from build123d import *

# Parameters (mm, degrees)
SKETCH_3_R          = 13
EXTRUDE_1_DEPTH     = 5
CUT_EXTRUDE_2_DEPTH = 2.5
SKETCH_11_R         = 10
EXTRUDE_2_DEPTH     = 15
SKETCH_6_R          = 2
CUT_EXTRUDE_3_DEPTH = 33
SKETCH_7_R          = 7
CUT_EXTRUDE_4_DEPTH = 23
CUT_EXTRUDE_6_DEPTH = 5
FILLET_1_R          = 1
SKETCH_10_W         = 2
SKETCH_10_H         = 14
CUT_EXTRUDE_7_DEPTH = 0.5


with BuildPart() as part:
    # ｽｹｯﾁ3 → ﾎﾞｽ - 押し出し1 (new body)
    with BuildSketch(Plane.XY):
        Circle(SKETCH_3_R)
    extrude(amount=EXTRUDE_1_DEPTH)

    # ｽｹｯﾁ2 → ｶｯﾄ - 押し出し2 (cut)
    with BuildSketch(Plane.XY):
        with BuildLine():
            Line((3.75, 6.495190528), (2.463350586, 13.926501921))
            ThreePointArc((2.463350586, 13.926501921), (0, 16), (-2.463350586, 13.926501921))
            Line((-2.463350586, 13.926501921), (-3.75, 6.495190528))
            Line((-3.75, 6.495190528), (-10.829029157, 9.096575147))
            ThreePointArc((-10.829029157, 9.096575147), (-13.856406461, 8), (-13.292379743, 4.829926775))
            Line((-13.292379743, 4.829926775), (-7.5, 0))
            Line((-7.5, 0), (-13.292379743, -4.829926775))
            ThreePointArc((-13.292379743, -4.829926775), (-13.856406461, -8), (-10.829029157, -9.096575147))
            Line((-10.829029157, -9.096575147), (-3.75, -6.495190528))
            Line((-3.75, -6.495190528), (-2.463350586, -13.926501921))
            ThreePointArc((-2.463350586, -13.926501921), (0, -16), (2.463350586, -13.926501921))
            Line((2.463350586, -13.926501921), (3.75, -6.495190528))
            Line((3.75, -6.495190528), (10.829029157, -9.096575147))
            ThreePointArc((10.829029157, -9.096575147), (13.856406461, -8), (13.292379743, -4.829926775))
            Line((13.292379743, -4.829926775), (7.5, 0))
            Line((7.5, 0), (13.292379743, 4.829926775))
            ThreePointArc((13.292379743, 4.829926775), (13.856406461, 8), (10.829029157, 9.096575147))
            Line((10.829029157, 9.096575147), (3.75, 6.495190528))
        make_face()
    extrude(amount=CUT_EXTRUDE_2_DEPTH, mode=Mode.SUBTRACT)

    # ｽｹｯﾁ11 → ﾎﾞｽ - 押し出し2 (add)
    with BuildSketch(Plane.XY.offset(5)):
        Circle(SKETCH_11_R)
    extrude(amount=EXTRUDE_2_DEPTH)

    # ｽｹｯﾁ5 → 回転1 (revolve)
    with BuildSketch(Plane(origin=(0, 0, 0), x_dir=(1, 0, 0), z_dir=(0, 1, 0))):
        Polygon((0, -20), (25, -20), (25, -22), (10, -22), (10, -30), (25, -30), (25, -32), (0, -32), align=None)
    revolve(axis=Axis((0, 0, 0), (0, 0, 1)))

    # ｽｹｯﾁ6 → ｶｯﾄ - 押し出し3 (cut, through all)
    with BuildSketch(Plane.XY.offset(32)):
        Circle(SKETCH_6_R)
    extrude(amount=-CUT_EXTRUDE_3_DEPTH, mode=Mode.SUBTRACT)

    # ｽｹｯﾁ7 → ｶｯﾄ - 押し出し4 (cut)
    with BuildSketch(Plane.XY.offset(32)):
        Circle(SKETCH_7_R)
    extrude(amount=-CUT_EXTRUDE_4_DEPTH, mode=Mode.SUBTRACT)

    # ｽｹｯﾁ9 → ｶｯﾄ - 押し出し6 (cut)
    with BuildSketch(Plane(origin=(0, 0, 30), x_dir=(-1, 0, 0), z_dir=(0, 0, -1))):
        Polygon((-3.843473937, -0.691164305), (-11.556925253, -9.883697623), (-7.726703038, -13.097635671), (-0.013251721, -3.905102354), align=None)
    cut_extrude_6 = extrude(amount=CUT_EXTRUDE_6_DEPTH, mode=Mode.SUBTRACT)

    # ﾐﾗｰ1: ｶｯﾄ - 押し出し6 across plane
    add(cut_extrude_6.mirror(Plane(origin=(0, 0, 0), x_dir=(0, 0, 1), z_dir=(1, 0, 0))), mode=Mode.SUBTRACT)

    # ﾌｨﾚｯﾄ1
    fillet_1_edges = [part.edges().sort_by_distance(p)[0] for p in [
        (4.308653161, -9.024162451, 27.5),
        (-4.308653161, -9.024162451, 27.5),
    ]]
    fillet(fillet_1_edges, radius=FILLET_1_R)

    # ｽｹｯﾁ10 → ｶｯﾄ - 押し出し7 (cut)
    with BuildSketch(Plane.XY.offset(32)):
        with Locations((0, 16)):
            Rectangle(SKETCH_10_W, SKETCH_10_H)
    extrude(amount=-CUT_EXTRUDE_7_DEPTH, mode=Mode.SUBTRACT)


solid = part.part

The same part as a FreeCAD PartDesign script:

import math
import FreeCAD as App
import Part
import Sketcher
Q = App.Units.Quantity


def edges_at(feature, points):
    """Names of the edges that pass closest to the given points."""
    edges = feature.Shape.Edges
    near = lambda p: min(range(len(edges)), key=lambda i: edges[i].distToShape(Part.Vertex(*p))[0])
    return sorted({f"Edge{near(p) + 1}" for p in points})


def add_polygon(sketch, points):
    """Adds a closed chain of lines whose ends are joined by coincident constraints."""
    first, n = sketch.GeometryCount, len(points)
    for a, b in zip(points, points[1:] + points[:1]):
        sketch.addGeometry(Part.LineSegment(App.Vector(*a, 0), App.Vector(*b, 0)), False)
    for i in range(n):
        sketch.addConstraint(Sketcher.Constraint("Coincident", first + i, 2, first + (i + 1) % n, 1))

doc = App.newDocument("Part")
body = doc.addObject("PartDesign::Body", "Body")

sketch1 = body.newObject("Sketcher::SketchObject", "Sketch")
sketch1.AttachmentSupport = (doc.getObject("XY_Plane"), [""])
sketch1.MapMode = "FlatFace"
sketch1.addGeometry(Part.Circle(App.Vector(0, 0, 0), App.Vector(0, 0, 1), 13), False)
sketch1.addConstraint([
    Sketcher.Constraint("Coincident", 0, 3, -1, 1),
    Sketcher.Constraint("Diameter", 0, 26.0),
])
pad1 = body.newObject("PartDesign::Pad", "Pad")
pad1.Profile = sketch1
pad1.Length = 5

sketch2 = body.newObject("Sketcher::SketchObject", "Sketch001")
sketch2.AttachmentSupport = (doc.getObject("XY_Plane"), [""])
sketch2.MapMode = "FlatFace"
sketch2.addGeometry([
    Part.LineSegment(App.Vector(3.8, 6.5, 0), App.Vector(2.5, 13.9, 0)),
    Part.ArcOfCircle(Part.Circle(App.Vector(0, 13.5, 0), App.Vector(0, 0, 1), 2.5), math.radians(10), math.radians(170)),
    Part.LineSegment(App.Vector(-2.5, 13.9, 0), App.Vector(-3.8, 6.5, 0)),
    Part.LineSegment(App.Vector(-3.8, 6.5, 0), App.Vector(-10.8, 9.1, 0)),
    Part.ArcOfCircle(Part.Circle(App.Vector(-11.7, 6.8, 0), App.Vector(0, 0, 1), 2.5), math.radians(70), math.radians(230)),
    Part.LineSegment(App.Vector(-13.3, 4.8, 0), App.Vector(-7.5, 0, 0)),
    Part.LineSegment(App.Vector(-7.5, 0, 0), App.Vector(-13.3, -4.8, 0)),
    Part.ArcOfCircle(Part.Circle(App.Vector(-11.7, -6.8, 0), App.Vector(0, 0, 1), 2.5), math.radians(130), math.radians(290)),
    Part.LineSegment(App.Vector(-10.8, -9.1, 0), App.Vector(-3.8, -6.5, 0)),
    Part.LineSegment(App.Vector(-3.8, -6.5, 0), App.Vector(-2.5, -13.9, 0)),
    Part.ArcOfCircle(Part.Circle(App.Vector(0, -13.5, 0), App.Vector(0, 0, 1), 2.5), math.radians(-170), math.radians(-10)),
    Part.LineSegment(App.Vector(2.5, -13.9, 0), App.Vector(3.8, -6.5, 0)),
    Part.LineSegment(App.Vector(3.8, -6.5, 0), App.Vector(10.8, -9.1, 0)),
    Part.ArcOfCircle(Part.Circle(App.Vector(11.7, -6.8, 0), App.Vector(0, 0, 1), 2.5), math.radians(-110), math.radians(50)),
    Part.LineSegment(App.Vector(13.3, -4.8, 0), App.Vector(7.5, 0, 0)),
    Part.LineSegment(App.Vector(7.5, 0, 0), App.Vector(13.3, 4.8, 0)),
    Part.ArcOfCircle(Part.Circle(App.Vector(11.7, 6.8, 0), App.Vector(0, 0, 1), 2.5), math.radians(-50), math.radians(110)),
    Part.LineSegment(App.Vector(10.8, 9.1, 0), App.Vector(3.8, 6.5, 0)),
], False)
sketch2.addConstraint([
    Sketcher.Constraint("Tangent", 0, 2, 1, 1),
    Sketcher.Constraint("Tangent", 1, 2, 2, 1),
    Sketcher.Constraint("Coincident", 2, 2, 3, 1),
    Sketcher.Constraint("Tangent", 3, 2, 4, 1),
    Sketcher.Constraint("Tangent", 4, 2, 5, 1),
    Sketcher.Constraint("Coincident", 5, 2, 6, 1),
    Sketcher.Constraint("Tangent", 6, 2, 7, 1),
    Sketcher.Constraint("Tangent", 7, 2, 8, 1),
    Sketcher.Constraint("Coincident", 8, 2, 9, 1),
    Sketcher.Constraint("Tangent", 9, 2, 10, 1),
    Sketcher.Constraint("Tangent", 10, 2, 11, 1),
    Sketcher.Constraint("Coincident", 11, 2, 12, 1),
    Sketcher.Constraint("Tangent", 12, 2, 13, 1),
    Sketcher.Constraint("Tangent", 13, 2, 14, 1),
    Sketcher.Constraint("Coincident", 14, 2, 15, 1),
    Sketcher.Constraint("Tangent", 15, 2, 16, 1),
    Sketcher.Constraint("Tangent", 16, 2, 17, 1),
    Sketcher.Constraint("Coincident", 17, 2, 0, 1),
    Sketcher.Constraint("Equal", 1, 4),
    Sketcher.Constraint("Equal", 4, 7),
    Sketcher.Constraint("Equal", 7, 10),
    Sketcher.Constraint("Equal", 10, 13),
    Sketcher.Constraint("Equal", 13, 16),
    Sketcher.Constraint("Symmetric", 1, 3, 10, 3, -1, 1),
    Sketcher.Constraint("Symmetric", 4, 3, 13, 3, -1, 1),
    Sketcher.Constraint("Symmetric", 7, 3, 16, 3, -1, 1),
    Sketcher.Constraint("Symmetric", 2, 2, 11, 2, -1, 1),
    Sketcher.Constraint("Symmetric", 5, 2, 14, 2, -1, 1),
    Sketcher.Constraint("Symmetric", 8, 2, 17, 2, -1, 1),
    Sketcher.Constraint("Symmetric", 7, 3, 13, 3, -2),
    Sketcher.Constraint("Symmetric", 0, 2, 1, 2, -2),
    Sketcher.Constraint("PointOnObject", 5, 2, -1),
    Sketcher.Constraint("Horizontal", 8, 2, 11, 2),
    Sketcher.Constraint("Equal", 2, 3),
    Sketcher.Constraint("Equal", 3, 5),
    Sketcher.Constraint("Radius", 1, 2.5),
    Sketcher.Constraint("DistanceY", 10, 3, 1, 3, 27.0),
    Sketcher.Constraint("DistanceX", 5, 2, -1, 1, 7.5),
    Sketcher.Constraint("DistanceY", 7, 3, 4, 3, 13.5),
    Sketcher.Constraint("DistanceX", 8, 2, 11, 2, 7.5),
])
pocket1 = body.newObject("PartDesign::Pocket", "Pocket")
pocket1.Profile = sketch2
pocket1.Length = 2.5
pocket1.Reversed = True

sketch3 = body.newObject("Sketcher::SketchObject", "Sketch002")
sketch3.AttachmentSupport = (doc.getObject("XY_Plane"), [""])
sketch3.MapMode = "FlatFace"
sketch3.AttachmentOffset = App.Placement(App.Vector(0, 0, 5), App.Rotation())
sketch3.addGeometry(Part.Circle(App.Vector(0, 0, 0), App.Vector(0, 0, 1), 10), False)
sketch3.addConstraint([
    Sketcher.Constraint("Coincident", 0, 3, -1, 1),
    Sketcher.Constraint("Diameter", 0, 20.0),
])
pad2 = body.newObject("PartDesign::Pad", "Pad001")
pad2.Profile = sketch3
pad2.Length = 15

sketch4 = body.newObject("Sketcher::SketchObject", "Sketch003")
sketch4.AttachmentSupport = (doc.getObject("XZ_Plane"), [""])
sketch4.MapMode = "FlatFace"
add_polygon(sketch4, [(25, 20), (0, 20), (0, 32), (25, 32), (25, 30), (10, 30), (10, 22), (25, 22)])
sketch4.addConstraint([
    Sketcher.Constraint("Horizontal", 0),
    Sketcher.Constraint("Vertical", 1),
    Sketcher.Constraint("Horizontal", 2),
    Sketcher.Constraint("Vertical", 3),
    Sketcher.Constraint("Horizontal", 4),
    Sketcher.Constraint("Vertical", 5),
    Sketcher.Constraint("Horizontal", 6),
    Sketcher.Constraint("Vertical", 7),
    Sketcher.Constraint("PointOnObject", 0, 2, -2),
    Sketcher.Constraint("Vertical", 3, 2, 6, 2),
    Sketcher.Constraint("Equal", 3, 7),
    Sketcher.Constraint("DistanceX", 0, 2, 0, 1, 25.0),
    Sketcher.Constraint("DistanceX", 4, 2, 4, 1, 15.0),
    Sketcher.Constraint("DistanceY", 1, 1, 1, 2, 12.0),
    Sketcher.Constraint("DistanceY", 3, 2, 3, 1, 2.0),
    Sketcher.Constraint("DistanceY", -1, 1, 0, 2, 20.0),
])
revolution = body.newObject("PartDesign::Revolution", "Revolution")
revolution.Profile = sketch4
revolution.ReferenceAxis = (sketch4, ["V_Axis"])
revolution.Angle = 360

sketch5 = body.newObject("Sketcher::SketchObject", "Sketch004")
sketch5.AttachmentSupport = (doc.getObject("XY_Plane"), [""])
sketch5.MapMode = "FlatFace"
sketch5.AttachmentOffset = App.Placement(App.Vector(0, 0, 32), App.Rotation())
sketch5.addGeometry(Part.Circle(App.Vector(0, 0, 0), App.Vector(0, 0, 1), 2), False)
sketch5.addConstraint([
    Sketcher.Constraint("Coincident", 0, 3, -1, 1),
    Sketcher.Constraint("Diameter", 0, 4.0),
])
pocket2 = body.newObject("PartDesign::Pocket", "Pocket001")
pocket2.Profile = sketch5
pocket2.Type = "ThroughAll"

sketch6 = body.newObject("Sketcher::SketchObject", "Sketch005")
sketch6.AttachmentSupport = (doc.getObject("XY_Plane"), [""])
sketch6.MapMode = "FlatFace"
sketch6.AttachmentOffset = App.Placement(App.Vector(0, 0, 32), App.Rotation())
sketch6.addGeometry(Part.Circle(App.Vector(0, 0, 0), App.Vector(0, 0, 1), 7), False)
sketch6.addConstraint([
    Sketcher.Constraint("Coincident", 0, 3, -1, 1),
    Sketcher.Constraint("Diameter", 0, 14.0),
])
pocket3 = body.newObject("PartDesign::Pocket", "Pocket002")
pocket3.Profile = sketch6
pocket3.Length = 23

sketch7 = body.newObject("Sketcher::SketchObject", "Sketch006")
sketch7.AttachmentSupport = (doc.getObject("XY_Plane"), [""])
sketch7.MapMode = "FlatFace"
sketch7.AttachmentOffset = App.Placement(App.Vector(0, 0, 30), App.Rotation())
add_polygon(sketch7, [(3.8, -0.7), (11.6, -9.9), (7.7, -13.1), (0, -3.9)])
sketch7.addConstraint([
    Sketcher.Constraint("Perpendicular", 0, 1),
    Sketcher.Constraint("Perpendicular", 1, 2),
    Sketcher.Constraint("Perpendicular", 2, 3),
    Sketcher.Constraint("Angle", 0, Q("-50 deg")),
    Sketcher.Constraint("Distance", 0, 12.0),
    Sketcher.Constraint("Distance", 1, 5.0),
    Sketcher.Constraint("DistanceX", -1, 1, 2, 2, 0.013252),
    Sketcher.Constraint("DistanceY", 0, 2, -1, 1, 9.883698),
])
pocket4 = body.newObject("PartDesign::Pocket", "Pocket003")
pocket4.Profile = sketch7
pocket4.Length = 5
doc.recompute()

mirrored = body.newObject("PartDesign::Mirrored", "Mirrored")
mirrored.Originals = [pocket4]
mirrored.MirrorPlane = (doc.getObject("YZ_Plane"), [""])
body.Tip = mirrored
doc.recompute()

fillet = body.newObject("PartDesign::Fillet", "Fillet")
fillet.Base = (mirrored, edges_at(mirrored, [(4.309, -9.024, 27.5), (-4.309, -9.024, 27.5)]))
fillet.Radius = 1

sketch8 = body.newObject("Sketcher::SketchObject", "Sketch007")
sketch8.AttachmentSupport = (doc.getObject("XY_Plane"), [""])
sketch8.MapMode = "FlatFace"
sketch8.AttachmentOffset = App.Placement(App.Vector(0, 0, 32), App.Rotation())
add_polygon(sketch8, [(-1, 23), (-1, 9), (1, 9), (1, 23)])
sketch8.addConstraint([
    Sketcher.Constraint("Vertical", 0),
    Sketcher.Constraint("Horizontal", 1),
    Sketcher.Constraint("Vertical", 2),
    Sketcher.Constraint("Horizontal", 3),
    Sketcher.Constraint("DistanceX", 1, 1, 1, 2, 2.0),
    Sketcher.Constraint("DistanceY", 0, 2, 0, 1, 14.0),
    Sketcher.Constraint("DistanceX", 0, 2, -1, 1, 1.0),
    Sketcher.Constraint("DistanceY", -1, 1, 0, 2, 9.0),
])
pocket5 = body.newObject("PartDesign::Pocket", "Pocket004")
pocket5.Profile = sketch8
pocket5.Length = 0.5

doc.recompute()
